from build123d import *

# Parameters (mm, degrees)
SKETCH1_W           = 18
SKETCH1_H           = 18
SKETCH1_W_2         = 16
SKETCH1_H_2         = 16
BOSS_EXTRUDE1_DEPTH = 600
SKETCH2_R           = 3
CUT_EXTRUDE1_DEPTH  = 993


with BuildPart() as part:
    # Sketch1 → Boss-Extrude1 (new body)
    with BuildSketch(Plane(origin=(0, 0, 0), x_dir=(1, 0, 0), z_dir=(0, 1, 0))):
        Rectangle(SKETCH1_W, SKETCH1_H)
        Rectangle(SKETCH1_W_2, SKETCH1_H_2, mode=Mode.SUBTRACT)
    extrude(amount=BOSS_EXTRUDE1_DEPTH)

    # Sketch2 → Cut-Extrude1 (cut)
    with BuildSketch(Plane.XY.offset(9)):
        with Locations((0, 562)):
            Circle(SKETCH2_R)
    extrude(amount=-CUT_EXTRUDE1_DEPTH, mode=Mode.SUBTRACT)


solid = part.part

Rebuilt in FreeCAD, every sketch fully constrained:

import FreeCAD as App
import Part
import Sketcher

V = App.Vector
Q = App.Units.Quantity

doc = App.newDocument("Part")
body = doc.addObject("PartDesign::Body", "Body")

sketch1 = body.newObject("Sketcher::SketchObject", "Sketch")
sketch1.AttachmentSupport = (doc.getObject("XZ_Plane"), [""])
sketch1.MapMode = "FlatFace"
sketch1.addGeometry([
    Part.LineSegment(V(-9, -9, 0), V(-9, 9, 0)),
    Part.LineSegment(V(-9, 9, 0), V(9, 9, 0)),
    Part.LineSegment(V(9, 9, 0), V(9, -9, 0)),
    Part.LineSegment(V(9, -9, 0), V(-9, -9, 0)),
    Part.LineSegment(V(8, 8, 0), V(-8, 8, 0)),
    Part.LineSegment(V(-8, 8, 0), V(-8, -8, 0)),
    Part.LineSegment(V(-8, -8, 0), V(8, -8, 0)),
    Part.LineSegment(V(8, -8, 0), V(8, 8, 0)),
], False)
sketch1.addConstraint([
    Sketcher.Constraint("Coincident", 0, 2, 1, 1),
    Sketcher.Constraint("Coincident", 1, 2, 2, 1),
    Sketcher.Constraint("Coincident", 2, 2, 3, 1),
    Sketcher.Constraint("Coincident", 3, 2, 0, 1),
    Sketcher.Constraint("Coincident", 4, 2, 5, 1),
    Sketcher.Constraint("Coincident", 5, 2, 6, 1),
    Sketcher.Constraint("Coincident", 6, 2, 7, 1),
    Sketcher.Constraint("Coincident", 7, 2, 4, 1),
    Sketcher.Constraint("Vertical", 0),
    Sketcher.Constraint("Horizontal", 1),
    Sketcher.Constraint("Vertical", 2),
    Sketcher.Constraint("Horizontal", 3),
    Sketcher.Constraint("Horizontal", 4),
    Sketcher.Constraint("Vertical", 5),
    Sketcher.Constraint("Horizontal", 6),
    Sketcher.Constraint("Vertical", 7),
    Sketcher.Constraint("Symmetric", 0, 2, 2, 2, -1, 1),
    Sketcher.Constraint("Symmetric", 4, 2, 6, 2, -1, 1),
    Sketcher.Constraint("Equal", 3, 0),
    Sketcher.Constraint("Equal", 6, 5),
    Sketcher.Constraint("DistanceX", 1, 1, 1, 2, Q("18 mm")),
    Sketcher.Constraint("DistanceX", 4, 2, 4, 1, Q("16 mm")),
])
pad1 = body.newObject("PartDesign::Pad", "Pad")
pad1.Profile = sketch1
pad1.Length = 600
pad1.Reversed = True

sketch2 = body.newObject("Sketcher::SketchObject", "Sketch001")
sketch2.AttachmentSupport = (doc.getObject("XY_Plane"), [""])
sketch2.MapMode = "FlatFace"
sketch2.AttachmentOffset = App.Placement(V(0, 0, 9), App.Rotation())
sketch2.addGeometry(Part.Circle(V(0, 562, 0), V(0, 0, 1), 3), False)
sketch2.addConstraint([
    Sketcher.Constraint("PointOnObject", 0, 3, -2),
    Sketcher.Constraint("Diameter", 0, Q("6 mm")),
    Sketcher.Constraint("DistanceY", -1, 1, 0, 3, Q("562 mm")),
])
pocket1 = body.newObject("PartDesign::Pocket", "Pocket")
pocket1.Profile = sketch2
pocket1.Length = 993

doc.recompute()
